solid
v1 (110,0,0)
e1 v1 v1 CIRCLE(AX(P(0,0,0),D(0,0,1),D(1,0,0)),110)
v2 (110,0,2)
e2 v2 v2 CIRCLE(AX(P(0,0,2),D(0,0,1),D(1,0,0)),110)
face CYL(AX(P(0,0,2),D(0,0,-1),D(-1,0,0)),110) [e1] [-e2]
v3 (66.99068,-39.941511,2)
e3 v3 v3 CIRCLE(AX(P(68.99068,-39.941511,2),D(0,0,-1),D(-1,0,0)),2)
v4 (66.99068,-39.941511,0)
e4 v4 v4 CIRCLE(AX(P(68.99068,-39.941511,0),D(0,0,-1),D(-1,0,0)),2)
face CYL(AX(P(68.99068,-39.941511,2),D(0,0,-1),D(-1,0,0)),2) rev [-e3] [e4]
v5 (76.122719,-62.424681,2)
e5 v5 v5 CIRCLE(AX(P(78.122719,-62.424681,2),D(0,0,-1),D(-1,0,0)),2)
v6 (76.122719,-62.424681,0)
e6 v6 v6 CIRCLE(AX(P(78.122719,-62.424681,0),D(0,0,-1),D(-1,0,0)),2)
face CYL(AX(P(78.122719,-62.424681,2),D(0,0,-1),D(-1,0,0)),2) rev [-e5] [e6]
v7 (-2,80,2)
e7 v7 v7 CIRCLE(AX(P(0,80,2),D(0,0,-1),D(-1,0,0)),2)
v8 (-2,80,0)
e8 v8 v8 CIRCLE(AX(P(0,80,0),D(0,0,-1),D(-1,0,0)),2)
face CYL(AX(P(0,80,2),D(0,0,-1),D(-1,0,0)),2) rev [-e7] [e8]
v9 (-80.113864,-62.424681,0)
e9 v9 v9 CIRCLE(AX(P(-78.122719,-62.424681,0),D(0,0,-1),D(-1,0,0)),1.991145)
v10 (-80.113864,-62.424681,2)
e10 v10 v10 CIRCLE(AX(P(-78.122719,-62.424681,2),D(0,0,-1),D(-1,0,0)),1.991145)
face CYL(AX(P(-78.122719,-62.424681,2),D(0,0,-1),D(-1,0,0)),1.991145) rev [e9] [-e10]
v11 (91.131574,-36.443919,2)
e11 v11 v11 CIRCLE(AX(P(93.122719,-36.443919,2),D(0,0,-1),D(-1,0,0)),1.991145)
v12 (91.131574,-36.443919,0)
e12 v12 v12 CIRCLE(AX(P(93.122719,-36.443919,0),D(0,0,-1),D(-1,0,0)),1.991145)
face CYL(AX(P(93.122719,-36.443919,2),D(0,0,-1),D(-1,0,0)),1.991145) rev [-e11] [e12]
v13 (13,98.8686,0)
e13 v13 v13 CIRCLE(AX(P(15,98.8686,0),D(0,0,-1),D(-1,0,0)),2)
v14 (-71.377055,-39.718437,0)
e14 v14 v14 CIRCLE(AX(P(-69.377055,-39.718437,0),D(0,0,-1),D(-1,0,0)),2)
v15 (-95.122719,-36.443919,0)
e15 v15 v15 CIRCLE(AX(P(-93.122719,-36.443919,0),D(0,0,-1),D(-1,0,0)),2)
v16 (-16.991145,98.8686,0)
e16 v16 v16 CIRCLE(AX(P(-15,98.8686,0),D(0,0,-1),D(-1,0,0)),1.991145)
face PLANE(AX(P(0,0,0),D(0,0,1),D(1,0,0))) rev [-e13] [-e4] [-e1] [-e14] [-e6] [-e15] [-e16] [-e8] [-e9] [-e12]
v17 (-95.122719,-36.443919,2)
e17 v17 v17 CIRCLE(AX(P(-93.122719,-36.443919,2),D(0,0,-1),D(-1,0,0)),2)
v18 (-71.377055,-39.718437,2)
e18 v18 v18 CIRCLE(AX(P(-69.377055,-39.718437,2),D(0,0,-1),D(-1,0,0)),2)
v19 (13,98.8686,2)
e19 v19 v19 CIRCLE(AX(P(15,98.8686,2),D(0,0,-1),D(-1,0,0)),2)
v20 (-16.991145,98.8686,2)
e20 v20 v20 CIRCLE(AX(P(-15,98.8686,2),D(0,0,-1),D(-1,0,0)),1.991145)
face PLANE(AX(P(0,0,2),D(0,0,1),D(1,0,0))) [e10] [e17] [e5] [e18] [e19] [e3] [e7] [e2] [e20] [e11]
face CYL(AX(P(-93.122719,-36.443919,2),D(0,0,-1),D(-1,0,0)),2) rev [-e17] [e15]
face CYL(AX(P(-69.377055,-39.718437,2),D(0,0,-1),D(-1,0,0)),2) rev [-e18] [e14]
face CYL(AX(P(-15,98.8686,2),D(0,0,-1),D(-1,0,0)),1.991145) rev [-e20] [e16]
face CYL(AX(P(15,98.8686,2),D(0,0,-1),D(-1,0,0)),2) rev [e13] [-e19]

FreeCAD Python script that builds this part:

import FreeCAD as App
import Part
import Sketcher
from FreeCAD import Vector

doc = App.newDocument("Part")
body = doc.addObject("PartDesign::Body", "Body")

# Sketch on XY plane
sketch1 = doc.addObject("Sketcher::SketchObject", "Sketch")
body.addObject(sketch1)
sketch1.AttachmentSupport = (doc.XY_Plane, [""])
sketch1.MapMode = "FlatFace"
sketch1.addGeometry(Part.Circle(Vector(0, 0, 0), Vector(0, 0, 1), 110), False)
sketch1.addConstraint([
    Sketcher.Constraint("Coincident", 0, 3, -1, 1),
    Sketcher.Constraint("Diameter", 0, 220.0),
])
pad1 = doc.addObject("PartDesign::Pad", "Pad")
body.addObject(pad1)
pad1.Profile = sketch1
pad1.Length = 2

# Sketch on XY plane
sketch2 = doc.addObject("Sketcher::SketchObject", "Sketch001")
body.addObject(sketch2)
sketch2.AttachmentSupport = (doc.XY_Plane, [""])
sketch2.MapMode = "FlatFace"
sketch2.addGeometry([
    Part.Circle(Vector(15, 98.9, 0), Vector(0, 0, 1), 2),  # 0
    Part.Circle(Vector(-15, 98.9, 0), Vector(0, 0, 1), 2),  # 1
    Part.Circle(Vector(-69.4, -39.7, 0), Vector(0, 0, 1), 2),  # 2
    Part.Circle(Vector(-93.1, -36.4, 0), Vector(0, 0, 1), 2),  # 3
    Part.Circle(Vector(-78.1, -62.4, 0), Vector(0, 0, 1), 2),  # 4
    Part.Circle(Vector(69, -39.9, 0), Vector(0, 0, 1), 2),  # 5
    Part.Circle(Vector(78.1, -62.4, 0), Vector(0, 0, 1), 2),  # 6
    Part.Circle(Vector(93.1, -36.4, 0), Vector(0, 0, 1), 2),  # 7
    Part.Circle(Vector(0, 80, 0), Vector(0, 0, 1), 2),  # 8
], False)
sketch2.addConstraint([
    Sketcher.Constraint("Equal", 0, 2),
    Sketcher.Constraint("Equal", 2, 3),
    Sketcher.Constraint("Equal", 1, 4),
    Sketcher.Constraint("Equal", 3, 5),
    Sketcher.Constraint("Equal", 5, 6),
    Sketcher.Constraint("Equal", 4, 7),
    Sketcher.Constraint("Equal", 6, 8),
    Sketcher.Constraint("Symmetric", 0, 3, 1, 3, -2),
    Sketcher.Constraint("Symmetric", 4, 3, 6, 3, -2),
    Sketcher.Constraint("Symmetric", 3, 3, 7, 3, -2),
    Sketcher.Constraint("PointOnObject", 8, 3, -2),
    Sketcher.Constraint("Diameter", 0, 4.0),
    Sketcher.Constraint("DistanceX", -1, 1, 0, 3, 15.0),
    Sketcher.Constraint("DistanceY", -1, 1, 8, 3, 80.0),
    Sketcher.Constraint("DistanceX", 3, 3, 4, 3, 15.0),
    Sketcher.Constraint("Diameter", 1, 3.98229),
    Sketcher.Constraint("DistanceY", -1, 1, 0, 3, 98.8686),
    Sketcher.Constraint("DistanceX", 4, 3, 5, 3, 147.113399),
    Sketcher.Constraint("DistanceX", 3, 3, -1, 1, 93.122719),
    Sketcher.Constraint("DistanceY", 3, 3, -1, 1, 36.443919),
    Sketcher.Constraint("DistanceY", 4, 3, -1, 1, 62.424681),
    Sketcher.Constraint("DistanceY", 5, 3, -1, 1, 39.941511),
    Sketcher.Constraint("DistanceY", 2, 3, 3, 3, 3.274518),
    Sketcher.Constraint("DistanceX", 2, 3, -1, 1, 69.377055),
])
pocket1 = doc.addObject("PartDesign::Pocket", "Pocket")
body.addObject(pocket1)
pocket1.Profile = sketch2
pocket1.Length = 2
pocket1.Reversed = True

doc.recompute()
